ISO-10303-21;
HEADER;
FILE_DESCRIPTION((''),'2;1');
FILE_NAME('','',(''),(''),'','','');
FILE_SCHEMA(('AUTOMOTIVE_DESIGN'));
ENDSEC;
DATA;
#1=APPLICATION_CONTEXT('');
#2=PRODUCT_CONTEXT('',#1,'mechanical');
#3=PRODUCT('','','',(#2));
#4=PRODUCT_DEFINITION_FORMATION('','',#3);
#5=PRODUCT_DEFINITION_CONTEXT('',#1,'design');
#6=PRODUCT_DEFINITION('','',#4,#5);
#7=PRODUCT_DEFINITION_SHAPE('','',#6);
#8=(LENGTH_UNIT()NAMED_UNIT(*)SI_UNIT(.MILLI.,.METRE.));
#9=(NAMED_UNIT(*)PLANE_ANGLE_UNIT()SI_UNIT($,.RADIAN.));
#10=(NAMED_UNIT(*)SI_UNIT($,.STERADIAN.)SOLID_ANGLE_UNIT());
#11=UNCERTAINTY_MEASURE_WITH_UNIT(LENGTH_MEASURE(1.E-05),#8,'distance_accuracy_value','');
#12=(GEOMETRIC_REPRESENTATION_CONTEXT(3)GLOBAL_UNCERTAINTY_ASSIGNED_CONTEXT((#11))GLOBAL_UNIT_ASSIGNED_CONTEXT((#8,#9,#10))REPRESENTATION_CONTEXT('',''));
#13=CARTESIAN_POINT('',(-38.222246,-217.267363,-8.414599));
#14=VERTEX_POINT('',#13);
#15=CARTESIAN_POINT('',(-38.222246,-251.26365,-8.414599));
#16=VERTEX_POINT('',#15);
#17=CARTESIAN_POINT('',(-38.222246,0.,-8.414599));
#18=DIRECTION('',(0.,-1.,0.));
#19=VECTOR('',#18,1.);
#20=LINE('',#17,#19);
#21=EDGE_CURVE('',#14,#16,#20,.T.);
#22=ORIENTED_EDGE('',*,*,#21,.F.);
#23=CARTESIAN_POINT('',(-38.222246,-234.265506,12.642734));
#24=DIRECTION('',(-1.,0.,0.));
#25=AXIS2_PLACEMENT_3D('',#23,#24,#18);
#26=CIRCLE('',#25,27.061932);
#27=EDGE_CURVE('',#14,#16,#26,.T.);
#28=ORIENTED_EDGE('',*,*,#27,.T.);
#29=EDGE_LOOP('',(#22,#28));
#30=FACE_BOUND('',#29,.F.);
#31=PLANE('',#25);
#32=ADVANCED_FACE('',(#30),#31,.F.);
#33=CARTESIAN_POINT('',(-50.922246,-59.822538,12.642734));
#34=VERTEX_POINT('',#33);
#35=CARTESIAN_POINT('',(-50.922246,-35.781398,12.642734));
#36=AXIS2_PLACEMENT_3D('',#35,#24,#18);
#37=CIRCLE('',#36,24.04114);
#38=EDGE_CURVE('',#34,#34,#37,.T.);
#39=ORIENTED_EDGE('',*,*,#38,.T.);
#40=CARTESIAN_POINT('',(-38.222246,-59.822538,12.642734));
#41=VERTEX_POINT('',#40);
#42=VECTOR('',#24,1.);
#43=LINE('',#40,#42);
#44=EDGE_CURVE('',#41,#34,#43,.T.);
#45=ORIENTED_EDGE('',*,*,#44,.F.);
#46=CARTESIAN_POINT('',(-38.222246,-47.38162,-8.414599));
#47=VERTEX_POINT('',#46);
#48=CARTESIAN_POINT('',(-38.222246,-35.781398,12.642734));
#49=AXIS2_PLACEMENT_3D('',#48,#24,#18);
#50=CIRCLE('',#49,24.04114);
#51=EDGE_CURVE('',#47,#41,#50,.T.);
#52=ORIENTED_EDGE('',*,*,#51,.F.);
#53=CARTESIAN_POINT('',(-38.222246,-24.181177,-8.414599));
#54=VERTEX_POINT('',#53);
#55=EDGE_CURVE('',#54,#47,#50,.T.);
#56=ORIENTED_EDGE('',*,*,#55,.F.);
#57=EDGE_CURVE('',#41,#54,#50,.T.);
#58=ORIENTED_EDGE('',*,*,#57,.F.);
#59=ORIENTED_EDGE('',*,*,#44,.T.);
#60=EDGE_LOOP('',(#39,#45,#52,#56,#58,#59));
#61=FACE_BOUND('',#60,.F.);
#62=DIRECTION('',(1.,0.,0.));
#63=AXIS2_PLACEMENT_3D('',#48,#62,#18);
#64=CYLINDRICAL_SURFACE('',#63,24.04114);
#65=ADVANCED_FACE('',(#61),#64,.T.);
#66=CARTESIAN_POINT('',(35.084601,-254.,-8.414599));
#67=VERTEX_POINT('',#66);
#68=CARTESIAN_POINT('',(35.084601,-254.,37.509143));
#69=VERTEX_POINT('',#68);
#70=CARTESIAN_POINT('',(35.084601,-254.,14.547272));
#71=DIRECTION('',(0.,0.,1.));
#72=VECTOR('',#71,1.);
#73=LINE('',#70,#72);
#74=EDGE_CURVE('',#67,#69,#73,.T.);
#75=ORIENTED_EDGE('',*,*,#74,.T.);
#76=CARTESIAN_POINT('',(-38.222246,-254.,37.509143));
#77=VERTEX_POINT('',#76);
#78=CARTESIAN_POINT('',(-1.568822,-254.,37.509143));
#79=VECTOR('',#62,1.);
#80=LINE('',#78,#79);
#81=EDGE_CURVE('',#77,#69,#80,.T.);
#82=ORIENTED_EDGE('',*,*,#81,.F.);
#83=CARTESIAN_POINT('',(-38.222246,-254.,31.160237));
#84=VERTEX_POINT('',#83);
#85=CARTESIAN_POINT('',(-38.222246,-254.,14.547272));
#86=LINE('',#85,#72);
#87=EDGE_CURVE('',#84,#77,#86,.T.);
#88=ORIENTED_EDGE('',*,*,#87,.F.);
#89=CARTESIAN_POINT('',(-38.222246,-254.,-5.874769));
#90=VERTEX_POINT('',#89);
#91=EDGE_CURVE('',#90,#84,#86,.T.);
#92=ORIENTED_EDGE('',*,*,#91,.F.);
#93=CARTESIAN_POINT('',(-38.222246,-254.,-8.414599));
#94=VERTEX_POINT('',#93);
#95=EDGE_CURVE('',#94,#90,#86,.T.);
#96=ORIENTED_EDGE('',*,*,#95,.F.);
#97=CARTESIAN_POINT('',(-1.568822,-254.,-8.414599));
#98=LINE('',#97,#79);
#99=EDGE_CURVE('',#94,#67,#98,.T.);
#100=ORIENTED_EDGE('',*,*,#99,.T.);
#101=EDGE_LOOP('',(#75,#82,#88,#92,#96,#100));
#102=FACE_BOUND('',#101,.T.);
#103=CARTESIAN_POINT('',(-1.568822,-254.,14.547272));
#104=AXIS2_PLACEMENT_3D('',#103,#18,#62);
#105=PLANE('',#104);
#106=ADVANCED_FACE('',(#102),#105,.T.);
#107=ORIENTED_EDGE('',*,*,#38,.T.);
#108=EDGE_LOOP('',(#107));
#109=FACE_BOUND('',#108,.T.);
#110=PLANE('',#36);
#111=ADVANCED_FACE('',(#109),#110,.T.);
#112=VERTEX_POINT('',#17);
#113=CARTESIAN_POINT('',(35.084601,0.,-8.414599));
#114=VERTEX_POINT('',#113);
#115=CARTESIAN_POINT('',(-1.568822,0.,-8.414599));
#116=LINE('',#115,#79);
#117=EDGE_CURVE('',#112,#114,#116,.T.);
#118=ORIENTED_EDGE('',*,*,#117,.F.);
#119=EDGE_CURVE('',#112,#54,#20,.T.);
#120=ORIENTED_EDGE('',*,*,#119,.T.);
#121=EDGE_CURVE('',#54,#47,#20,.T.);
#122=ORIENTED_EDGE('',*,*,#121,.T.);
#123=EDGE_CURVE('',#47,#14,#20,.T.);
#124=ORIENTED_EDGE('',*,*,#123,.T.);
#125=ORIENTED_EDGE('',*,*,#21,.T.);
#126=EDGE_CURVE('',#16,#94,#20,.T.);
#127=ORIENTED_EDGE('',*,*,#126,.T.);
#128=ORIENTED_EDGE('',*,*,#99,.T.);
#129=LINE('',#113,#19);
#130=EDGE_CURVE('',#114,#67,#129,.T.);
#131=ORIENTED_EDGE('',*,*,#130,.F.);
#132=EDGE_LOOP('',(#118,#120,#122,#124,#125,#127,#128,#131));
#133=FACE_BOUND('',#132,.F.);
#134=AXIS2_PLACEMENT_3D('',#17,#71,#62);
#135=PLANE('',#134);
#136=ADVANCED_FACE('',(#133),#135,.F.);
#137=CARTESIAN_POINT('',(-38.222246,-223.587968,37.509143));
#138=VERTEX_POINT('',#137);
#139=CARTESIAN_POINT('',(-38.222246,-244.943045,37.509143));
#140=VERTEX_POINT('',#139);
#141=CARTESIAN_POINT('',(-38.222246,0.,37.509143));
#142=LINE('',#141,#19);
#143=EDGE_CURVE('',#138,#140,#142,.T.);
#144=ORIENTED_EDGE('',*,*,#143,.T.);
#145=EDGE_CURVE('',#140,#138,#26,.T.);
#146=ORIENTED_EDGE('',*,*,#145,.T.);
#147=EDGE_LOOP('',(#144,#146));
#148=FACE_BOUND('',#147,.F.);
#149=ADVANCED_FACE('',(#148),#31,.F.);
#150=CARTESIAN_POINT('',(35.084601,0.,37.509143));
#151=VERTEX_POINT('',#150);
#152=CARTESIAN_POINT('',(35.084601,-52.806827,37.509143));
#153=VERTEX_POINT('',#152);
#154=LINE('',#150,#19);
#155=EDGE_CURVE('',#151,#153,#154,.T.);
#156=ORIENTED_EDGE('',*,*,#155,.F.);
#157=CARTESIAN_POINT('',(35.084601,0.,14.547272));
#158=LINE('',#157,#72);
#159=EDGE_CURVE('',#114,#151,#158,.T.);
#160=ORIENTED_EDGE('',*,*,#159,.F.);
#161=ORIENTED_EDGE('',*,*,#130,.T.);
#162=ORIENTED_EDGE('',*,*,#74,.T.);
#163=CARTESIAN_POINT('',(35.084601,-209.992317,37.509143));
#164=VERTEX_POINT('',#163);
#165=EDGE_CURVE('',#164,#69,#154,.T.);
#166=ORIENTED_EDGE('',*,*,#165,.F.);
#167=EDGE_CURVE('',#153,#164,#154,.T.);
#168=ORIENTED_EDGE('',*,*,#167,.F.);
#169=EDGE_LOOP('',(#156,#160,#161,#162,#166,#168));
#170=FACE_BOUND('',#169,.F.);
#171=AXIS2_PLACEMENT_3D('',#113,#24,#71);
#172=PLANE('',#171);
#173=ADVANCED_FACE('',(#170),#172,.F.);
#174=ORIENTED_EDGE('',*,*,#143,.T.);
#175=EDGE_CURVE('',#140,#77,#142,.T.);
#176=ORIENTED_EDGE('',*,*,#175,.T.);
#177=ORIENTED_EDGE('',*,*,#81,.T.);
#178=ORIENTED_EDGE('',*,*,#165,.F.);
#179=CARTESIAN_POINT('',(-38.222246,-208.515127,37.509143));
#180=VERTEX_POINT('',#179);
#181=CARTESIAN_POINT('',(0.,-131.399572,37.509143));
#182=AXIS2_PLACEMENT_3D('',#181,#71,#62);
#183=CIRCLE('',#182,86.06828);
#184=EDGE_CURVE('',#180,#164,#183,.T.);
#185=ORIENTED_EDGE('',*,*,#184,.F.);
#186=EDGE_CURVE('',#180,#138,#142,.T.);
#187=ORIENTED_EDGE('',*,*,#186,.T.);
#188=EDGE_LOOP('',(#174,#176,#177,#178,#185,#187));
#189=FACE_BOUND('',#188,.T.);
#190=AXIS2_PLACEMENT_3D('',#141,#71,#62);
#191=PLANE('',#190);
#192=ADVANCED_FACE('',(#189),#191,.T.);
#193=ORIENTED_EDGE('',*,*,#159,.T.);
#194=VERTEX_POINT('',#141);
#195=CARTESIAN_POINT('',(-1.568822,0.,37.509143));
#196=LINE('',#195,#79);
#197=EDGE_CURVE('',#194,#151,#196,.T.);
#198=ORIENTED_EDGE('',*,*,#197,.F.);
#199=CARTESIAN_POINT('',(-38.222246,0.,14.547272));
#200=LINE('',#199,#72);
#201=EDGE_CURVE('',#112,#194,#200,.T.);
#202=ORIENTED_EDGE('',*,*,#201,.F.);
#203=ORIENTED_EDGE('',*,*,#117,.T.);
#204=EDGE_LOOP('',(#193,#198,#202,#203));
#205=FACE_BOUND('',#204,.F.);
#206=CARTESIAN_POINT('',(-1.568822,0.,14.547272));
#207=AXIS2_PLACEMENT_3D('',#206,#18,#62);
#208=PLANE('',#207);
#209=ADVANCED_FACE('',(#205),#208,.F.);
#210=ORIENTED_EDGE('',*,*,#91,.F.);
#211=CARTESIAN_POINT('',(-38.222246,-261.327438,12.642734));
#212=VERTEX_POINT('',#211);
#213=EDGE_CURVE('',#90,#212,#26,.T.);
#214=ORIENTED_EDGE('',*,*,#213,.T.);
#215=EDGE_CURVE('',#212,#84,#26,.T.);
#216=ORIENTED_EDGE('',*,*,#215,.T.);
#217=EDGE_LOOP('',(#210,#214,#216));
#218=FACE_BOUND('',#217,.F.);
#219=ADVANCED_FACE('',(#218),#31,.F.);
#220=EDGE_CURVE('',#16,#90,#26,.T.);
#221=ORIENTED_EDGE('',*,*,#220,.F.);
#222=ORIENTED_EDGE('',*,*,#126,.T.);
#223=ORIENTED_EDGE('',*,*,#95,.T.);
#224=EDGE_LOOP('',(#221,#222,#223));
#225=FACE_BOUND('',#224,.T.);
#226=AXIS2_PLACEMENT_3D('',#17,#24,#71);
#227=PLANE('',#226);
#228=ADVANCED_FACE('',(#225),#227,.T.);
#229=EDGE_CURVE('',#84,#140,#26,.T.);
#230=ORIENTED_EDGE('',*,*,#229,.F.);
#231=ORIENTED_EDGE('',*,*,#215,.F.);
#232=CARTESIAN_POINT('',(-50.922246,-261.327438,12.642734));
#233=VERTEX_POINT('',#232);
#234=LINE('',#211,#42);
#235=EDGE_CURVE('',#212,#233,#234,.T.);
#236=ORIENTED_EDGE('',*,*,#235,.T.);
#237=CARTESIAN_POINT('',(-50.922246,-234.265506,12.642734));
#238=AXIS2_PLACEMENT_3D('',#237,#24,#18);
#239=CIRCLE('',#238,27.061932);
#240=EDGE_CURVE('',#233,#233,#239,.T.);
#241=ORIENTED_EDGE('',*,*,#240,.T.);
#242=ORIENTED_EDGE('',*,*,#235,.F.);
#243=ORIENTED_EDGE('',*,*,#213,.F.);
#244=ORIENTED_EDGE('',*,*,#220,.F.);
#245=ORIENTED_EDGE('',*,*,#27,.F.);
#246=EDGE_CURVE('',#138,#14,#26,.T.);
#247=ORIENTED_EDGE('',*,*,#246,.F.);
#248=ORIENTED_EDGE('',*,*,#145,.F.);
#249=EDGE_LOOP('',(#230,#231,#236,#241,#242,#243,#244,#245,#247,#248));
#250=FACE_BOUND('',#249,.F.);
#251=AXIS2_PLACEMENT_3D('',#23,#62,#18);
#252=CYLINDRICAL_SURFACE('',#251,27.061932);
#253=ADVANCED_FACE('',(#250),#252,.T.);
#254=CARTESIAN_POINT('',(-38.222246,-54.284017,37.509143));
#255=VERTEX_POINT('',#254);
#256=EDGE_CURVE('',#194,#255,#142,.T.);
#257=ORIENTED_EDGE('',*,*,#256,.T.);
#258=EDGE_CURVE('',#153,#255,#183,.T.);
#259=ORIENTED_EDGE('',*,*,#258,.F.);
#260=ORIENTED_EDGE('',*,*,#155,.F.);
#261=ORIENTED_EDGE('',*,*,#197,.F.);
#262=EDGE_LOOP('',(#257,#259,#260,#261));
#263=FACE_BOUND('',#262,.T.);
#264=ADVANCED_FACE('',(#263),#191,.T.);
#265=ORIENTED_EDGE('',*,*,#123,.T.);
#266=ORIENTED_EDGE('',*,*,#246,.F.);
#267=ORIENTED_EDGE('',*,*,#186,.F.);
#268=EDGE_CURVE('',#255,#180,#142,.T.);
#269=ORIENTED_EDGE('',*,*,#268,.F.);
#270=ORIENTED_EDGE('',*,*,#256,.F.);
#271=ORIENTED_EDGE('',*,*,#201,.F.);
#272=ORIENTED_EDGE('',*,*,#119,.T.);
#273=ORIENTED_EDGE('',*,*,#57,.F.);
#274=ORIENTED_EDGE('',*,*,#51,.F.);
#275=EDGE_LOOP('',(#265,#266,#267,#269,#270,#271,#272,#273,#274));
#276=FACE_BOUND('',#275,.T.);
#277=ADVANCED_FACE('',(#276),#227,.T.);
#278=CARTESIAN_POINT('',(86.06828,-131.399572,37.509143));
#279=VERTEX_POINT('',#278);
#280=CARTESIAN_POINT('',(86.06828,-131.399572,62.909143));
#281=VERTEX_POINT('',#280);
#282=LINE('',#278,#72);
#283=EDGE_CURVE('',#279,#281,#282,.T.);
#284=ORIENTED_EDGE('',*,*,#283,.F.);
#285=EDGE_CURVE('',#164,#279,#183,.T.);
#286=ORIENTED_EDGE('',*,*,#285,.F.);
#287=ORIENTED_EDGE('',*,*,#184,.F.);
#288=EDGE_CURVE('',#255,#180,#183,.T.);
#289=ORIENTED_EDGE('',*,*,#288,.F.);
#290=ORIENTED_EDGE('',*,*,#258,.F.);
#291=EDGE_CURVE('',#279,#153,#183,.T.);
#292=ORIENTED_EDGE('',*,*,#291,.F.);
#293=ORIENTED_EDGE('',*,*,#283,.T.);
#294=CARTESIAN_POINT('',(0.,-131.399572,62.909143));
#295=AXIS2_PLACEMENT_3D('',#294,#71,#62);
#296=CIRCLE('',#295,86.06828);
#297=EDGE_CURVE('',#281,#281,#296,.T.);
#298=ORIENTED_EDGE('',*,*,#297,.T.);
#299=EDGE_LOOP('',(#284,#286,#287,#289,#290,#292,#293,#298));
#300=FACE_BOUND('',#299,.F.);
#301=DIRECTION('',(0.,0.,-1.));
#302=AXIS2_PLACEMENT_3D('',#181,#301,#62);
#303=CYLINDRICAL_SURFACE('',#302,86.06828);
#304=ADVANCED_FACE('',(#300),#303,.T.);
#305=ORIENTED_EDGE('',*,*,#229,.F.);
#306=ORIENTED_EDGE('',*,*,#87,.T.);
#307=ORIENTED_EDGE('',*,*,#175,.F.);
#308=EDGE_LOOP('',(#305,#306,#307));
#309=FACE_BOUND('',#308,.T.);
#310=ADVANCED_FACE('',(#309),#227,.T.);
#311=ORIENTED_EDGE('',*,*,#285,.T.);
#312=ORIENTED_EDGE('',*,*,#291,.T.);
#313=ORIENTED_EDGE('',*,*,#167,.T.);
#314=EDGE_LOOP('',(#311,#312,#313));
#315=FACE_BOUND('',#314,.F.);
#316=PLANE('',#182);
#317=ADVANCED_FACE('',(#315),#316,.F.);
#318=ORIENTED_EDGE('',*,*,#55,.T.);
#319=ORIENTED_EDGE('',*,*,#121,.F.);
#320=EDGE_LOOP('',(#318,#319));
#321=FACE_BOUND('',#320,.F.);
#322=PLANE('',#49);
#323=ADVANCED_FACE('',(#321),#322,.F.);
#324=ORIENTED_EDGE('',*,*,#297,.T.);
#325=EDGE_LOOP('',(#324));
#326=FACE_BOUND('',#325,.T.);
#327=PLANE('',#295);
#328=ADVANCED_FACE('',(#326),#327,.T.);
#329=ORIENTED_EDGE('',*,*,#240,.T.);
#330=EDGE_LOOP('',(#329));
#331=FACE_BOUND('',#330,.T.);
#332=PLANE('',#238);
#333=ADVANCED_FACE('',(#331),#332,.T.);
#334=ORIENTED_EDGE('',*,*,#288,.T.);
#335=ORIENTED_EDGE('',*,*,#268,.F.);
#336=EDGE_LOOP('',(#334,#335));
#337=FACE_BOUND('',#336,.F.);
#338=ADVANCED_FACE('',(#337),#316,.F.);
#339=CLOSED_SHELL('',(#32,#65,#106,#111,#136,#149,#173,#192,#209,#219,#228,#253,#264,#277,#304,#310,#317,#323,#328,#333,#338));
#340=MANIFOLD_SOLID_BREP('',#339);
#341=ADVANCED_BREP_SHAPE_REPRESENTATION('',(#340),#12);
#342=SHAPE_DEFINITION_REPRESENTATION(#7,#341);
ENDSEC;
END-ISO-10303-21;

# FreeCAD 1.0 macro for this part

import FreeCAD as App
import Part
import Sketcher


def add_polygon(sketch, points):
    """Adds a closed chain of lines whose ends are joined by coincident constraints."""
    first, n = sketch.GeometryCount, len(points)
    for a, b in zip(points, points[1:] + points[:1]):
        sketch.addGeometry(Part.LineSegment(App.Vector(*a, 0), App.Vector(*b, 0)), False)
    for i in range(n):
        sketch.addConstraint(Sketcher.Constraint("Coincident", first + i, 2, first + (i + 1) % n, 1))

doc = App.newDocument("Part")
params = doc.addObject("Spreadsheet::Sheet", "Params")
for row, (alias, value) in enumerate([
    ("pad1_length", "10 in"),
    ("pad2_length", "1 in"),
    ("pad3_length", "0.5 in"),
], start=1):
    params.set(f"A{row}", alias)
    params.set(f"B{row}", "=" + value)
    params.setAlias(f"B{row}", alias)

body = doc.addObject("PartDesign::Body", "Body")

sketch1 = doc.addObject("Sketcher::SketchObject", "Sketch")
body.addObject(sketch1)
sketch1.AttachmentSupport = (doc.XZ_Plane, [""])
sketch1.MapMode = "FlatFace"
add_polygon(sketch1, [(-38, 38), (-38, -8), (35, -8), (35, 38)])
sketch1.addConstraint(Sketcher.Constraint("Vertical", 0))
sketch1.addConstraint(Sketcher.Constraint("Horizontal", 1))
sketch1.addConstraint(Sketcher.Constraint("Vertical", 2))
sketch1.addConstraint(Sketcher.Constraint("Horizontal", 3))
sketch1.addConstraint(Sketcher.Constraint("DistanceY", 0, 2, -1, 1, 8.414599))
sketch1.addConstraint(Sketcher.Constraint("DistanceX", -1, 1, 1, 2, 35.084601))
sketch1.addConstraint(Sketcher.Constraint("DistanceX", 1, 1, 1, 2, 73.306847))
sketch1.addConstraint(Sketcher.Constraint("DistanceY", 0, 2, 0, 1, 45.923742))
pad1 = doc.addObject("PartDesign::Pad", "Pad")
body.addObject(pad1)
pad1.Profile = sketch1
pad1.setExpression("Length", "Params.pad1_length")

sketch2 = doc.addObject("Sketcher::SketchObject", "Sketch001")
body.addObject(sketch2)
sketch2.AttachmentSupport = (doc.XY_Plane, [""])
sketch2.MapMode = "FlatFace"
sketch2.AttachmentOffset = App.Placement(App.Vector(0, 0, 37.509143), App.Rotation())
sketch2.addGeometry(Part.Circle(App.Vector(0, -131, 0), App.Vector(0, 0, 1), 86), False)
sketch2.addConstraint(Sketcher.Constraint("PointOnObject", 0, 3, -2))
sketch2.addConstraint(Sketcher.Constraint("Diameter", 0, 172.136561))
sketch2.addConstraint(Sketcher.Constraint("DistanceY", 0, 3, -1, 1, 131.399572))
pad2 = doc.addObject("PartDesign::Pad", "Pad001")
body.addObject(pad2)
pad2.Profile = sketch2
pad2.setExpression("Length", "Params.pad2_length")

sketch3 = doc.addObject("Sketcher::SketchObject", "Sketch002")
body.addObject(sketch3)
sketch3.AttachmentSupport = (doc.YZ_Plane, [""])
sketch3.MapMode = "FlatFace"
sketch3.AttachmentOffset = App.Placement(App.Vector(0, 0, -38.222246), App.Rotation())
sketch3.addGeometry(Part.Circle(App.Vector(-234, 13, 0), App.Vector(0, 0, 1), 27), False)
sketch3.addGeometry(Part.Circle(App.Vector(-36, 13, 0), App.Vector(0, 0, 1), 24), False)
sketch3.addConstraint(Sketcher.Constraint("Horizontal", 0, 3, 1, 3))
sketch3.addConstraint(Sketcher.Constraint("Diameter", 1, 48.08228))
sketch3.addConstraint(Sketcher.Constraint("Diameter", 0, 54.123864))
sketch3.addConstraint(Sketcher.Constraint("DistanceX", 1, 3, -1, 1, 35.781398))
sketch3.addConstraint(Sketcher.Constraint("DistanceX", 0, 3, -1, 1, 234.265506))
sketch3.addConstraint(Sketcher.Constraint("DistanceY", -1, 1, 0, 3, 12.642734))
pad3 = doc.addObject("PartDesign::Pad", "Pad002")
body.addObject(pad3)
pad3.Profile = sketch3
pad3.setExpression("Length", "Params.pad3_length")
pad3.Reversed = True

doc.recompute()
